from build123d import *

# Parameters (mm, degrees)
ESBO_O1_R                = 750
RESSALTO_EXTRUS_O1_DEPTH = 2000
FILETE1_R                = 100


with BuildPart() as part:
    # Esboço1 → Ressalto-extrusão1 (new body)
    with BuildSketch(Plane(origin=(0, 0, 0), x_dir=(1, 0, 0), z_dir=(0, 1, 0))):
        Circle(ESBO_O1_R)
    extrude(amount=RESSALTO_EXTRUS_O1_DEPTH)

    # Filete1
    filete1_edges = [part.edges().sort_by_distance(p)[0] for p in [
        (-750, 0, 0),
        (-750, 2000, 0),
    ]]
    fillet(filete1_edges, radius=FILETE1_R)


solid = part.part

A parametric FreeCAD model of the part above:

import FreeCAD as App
import Part
import Sketcher

V = App.Vector
Q = App.Units.Quantity


def edges_at(feature, points):
    """Names of the edges that pass closest to the given points."""
    edges = feature.Shape.Edges
    near = lambda p: min(range(len(edges)), key=lambda i: edges[i].distToShape(Part.Vertex(*p))[0])
    return sorted({f"Edge{near(p) + 1}" for p in points})

doc = App.newDocument("Part")
body = doc.addObject("PartDesign::Body", "Body")

# Sketch on XZ plane
sketch1 = doc.addObject("Sketcher::SketchObject", "Sketch")
body.addObject(sketch1)
sketch1.AttachmentSupport = (doc.XZ_Plane, [""])
sketch1.MapMode = "FlatFace"
sketch1.addGeometry(Part.Circle(V(0, 0, 0), V(0, 0, 1), 750), False)
sketch1.addConstraint([
    Sketcher.Constraint("Coincident", 0, 3, -1, 1),
    Sketcher.Constraint("Diameter", 0, Q("1500 mm")),
])
pad1 = doc.addObject("PartDesign::Pad", "Pad")
body.addObject(pad1)
pad1.Profile = sketch1
pad1.Length = 2000
pad1.Reversed = True
doc.recompute()

fillet = doc.addObject("PartDesign::Fillet", "Fillet")
body.addObject(fillet)
fillet.Base = (pad1, edges_at(pad1, [(-750, 0, 0), (-750, 2000, 0)]))
fillet.Radius = 100

doc.recompute()
